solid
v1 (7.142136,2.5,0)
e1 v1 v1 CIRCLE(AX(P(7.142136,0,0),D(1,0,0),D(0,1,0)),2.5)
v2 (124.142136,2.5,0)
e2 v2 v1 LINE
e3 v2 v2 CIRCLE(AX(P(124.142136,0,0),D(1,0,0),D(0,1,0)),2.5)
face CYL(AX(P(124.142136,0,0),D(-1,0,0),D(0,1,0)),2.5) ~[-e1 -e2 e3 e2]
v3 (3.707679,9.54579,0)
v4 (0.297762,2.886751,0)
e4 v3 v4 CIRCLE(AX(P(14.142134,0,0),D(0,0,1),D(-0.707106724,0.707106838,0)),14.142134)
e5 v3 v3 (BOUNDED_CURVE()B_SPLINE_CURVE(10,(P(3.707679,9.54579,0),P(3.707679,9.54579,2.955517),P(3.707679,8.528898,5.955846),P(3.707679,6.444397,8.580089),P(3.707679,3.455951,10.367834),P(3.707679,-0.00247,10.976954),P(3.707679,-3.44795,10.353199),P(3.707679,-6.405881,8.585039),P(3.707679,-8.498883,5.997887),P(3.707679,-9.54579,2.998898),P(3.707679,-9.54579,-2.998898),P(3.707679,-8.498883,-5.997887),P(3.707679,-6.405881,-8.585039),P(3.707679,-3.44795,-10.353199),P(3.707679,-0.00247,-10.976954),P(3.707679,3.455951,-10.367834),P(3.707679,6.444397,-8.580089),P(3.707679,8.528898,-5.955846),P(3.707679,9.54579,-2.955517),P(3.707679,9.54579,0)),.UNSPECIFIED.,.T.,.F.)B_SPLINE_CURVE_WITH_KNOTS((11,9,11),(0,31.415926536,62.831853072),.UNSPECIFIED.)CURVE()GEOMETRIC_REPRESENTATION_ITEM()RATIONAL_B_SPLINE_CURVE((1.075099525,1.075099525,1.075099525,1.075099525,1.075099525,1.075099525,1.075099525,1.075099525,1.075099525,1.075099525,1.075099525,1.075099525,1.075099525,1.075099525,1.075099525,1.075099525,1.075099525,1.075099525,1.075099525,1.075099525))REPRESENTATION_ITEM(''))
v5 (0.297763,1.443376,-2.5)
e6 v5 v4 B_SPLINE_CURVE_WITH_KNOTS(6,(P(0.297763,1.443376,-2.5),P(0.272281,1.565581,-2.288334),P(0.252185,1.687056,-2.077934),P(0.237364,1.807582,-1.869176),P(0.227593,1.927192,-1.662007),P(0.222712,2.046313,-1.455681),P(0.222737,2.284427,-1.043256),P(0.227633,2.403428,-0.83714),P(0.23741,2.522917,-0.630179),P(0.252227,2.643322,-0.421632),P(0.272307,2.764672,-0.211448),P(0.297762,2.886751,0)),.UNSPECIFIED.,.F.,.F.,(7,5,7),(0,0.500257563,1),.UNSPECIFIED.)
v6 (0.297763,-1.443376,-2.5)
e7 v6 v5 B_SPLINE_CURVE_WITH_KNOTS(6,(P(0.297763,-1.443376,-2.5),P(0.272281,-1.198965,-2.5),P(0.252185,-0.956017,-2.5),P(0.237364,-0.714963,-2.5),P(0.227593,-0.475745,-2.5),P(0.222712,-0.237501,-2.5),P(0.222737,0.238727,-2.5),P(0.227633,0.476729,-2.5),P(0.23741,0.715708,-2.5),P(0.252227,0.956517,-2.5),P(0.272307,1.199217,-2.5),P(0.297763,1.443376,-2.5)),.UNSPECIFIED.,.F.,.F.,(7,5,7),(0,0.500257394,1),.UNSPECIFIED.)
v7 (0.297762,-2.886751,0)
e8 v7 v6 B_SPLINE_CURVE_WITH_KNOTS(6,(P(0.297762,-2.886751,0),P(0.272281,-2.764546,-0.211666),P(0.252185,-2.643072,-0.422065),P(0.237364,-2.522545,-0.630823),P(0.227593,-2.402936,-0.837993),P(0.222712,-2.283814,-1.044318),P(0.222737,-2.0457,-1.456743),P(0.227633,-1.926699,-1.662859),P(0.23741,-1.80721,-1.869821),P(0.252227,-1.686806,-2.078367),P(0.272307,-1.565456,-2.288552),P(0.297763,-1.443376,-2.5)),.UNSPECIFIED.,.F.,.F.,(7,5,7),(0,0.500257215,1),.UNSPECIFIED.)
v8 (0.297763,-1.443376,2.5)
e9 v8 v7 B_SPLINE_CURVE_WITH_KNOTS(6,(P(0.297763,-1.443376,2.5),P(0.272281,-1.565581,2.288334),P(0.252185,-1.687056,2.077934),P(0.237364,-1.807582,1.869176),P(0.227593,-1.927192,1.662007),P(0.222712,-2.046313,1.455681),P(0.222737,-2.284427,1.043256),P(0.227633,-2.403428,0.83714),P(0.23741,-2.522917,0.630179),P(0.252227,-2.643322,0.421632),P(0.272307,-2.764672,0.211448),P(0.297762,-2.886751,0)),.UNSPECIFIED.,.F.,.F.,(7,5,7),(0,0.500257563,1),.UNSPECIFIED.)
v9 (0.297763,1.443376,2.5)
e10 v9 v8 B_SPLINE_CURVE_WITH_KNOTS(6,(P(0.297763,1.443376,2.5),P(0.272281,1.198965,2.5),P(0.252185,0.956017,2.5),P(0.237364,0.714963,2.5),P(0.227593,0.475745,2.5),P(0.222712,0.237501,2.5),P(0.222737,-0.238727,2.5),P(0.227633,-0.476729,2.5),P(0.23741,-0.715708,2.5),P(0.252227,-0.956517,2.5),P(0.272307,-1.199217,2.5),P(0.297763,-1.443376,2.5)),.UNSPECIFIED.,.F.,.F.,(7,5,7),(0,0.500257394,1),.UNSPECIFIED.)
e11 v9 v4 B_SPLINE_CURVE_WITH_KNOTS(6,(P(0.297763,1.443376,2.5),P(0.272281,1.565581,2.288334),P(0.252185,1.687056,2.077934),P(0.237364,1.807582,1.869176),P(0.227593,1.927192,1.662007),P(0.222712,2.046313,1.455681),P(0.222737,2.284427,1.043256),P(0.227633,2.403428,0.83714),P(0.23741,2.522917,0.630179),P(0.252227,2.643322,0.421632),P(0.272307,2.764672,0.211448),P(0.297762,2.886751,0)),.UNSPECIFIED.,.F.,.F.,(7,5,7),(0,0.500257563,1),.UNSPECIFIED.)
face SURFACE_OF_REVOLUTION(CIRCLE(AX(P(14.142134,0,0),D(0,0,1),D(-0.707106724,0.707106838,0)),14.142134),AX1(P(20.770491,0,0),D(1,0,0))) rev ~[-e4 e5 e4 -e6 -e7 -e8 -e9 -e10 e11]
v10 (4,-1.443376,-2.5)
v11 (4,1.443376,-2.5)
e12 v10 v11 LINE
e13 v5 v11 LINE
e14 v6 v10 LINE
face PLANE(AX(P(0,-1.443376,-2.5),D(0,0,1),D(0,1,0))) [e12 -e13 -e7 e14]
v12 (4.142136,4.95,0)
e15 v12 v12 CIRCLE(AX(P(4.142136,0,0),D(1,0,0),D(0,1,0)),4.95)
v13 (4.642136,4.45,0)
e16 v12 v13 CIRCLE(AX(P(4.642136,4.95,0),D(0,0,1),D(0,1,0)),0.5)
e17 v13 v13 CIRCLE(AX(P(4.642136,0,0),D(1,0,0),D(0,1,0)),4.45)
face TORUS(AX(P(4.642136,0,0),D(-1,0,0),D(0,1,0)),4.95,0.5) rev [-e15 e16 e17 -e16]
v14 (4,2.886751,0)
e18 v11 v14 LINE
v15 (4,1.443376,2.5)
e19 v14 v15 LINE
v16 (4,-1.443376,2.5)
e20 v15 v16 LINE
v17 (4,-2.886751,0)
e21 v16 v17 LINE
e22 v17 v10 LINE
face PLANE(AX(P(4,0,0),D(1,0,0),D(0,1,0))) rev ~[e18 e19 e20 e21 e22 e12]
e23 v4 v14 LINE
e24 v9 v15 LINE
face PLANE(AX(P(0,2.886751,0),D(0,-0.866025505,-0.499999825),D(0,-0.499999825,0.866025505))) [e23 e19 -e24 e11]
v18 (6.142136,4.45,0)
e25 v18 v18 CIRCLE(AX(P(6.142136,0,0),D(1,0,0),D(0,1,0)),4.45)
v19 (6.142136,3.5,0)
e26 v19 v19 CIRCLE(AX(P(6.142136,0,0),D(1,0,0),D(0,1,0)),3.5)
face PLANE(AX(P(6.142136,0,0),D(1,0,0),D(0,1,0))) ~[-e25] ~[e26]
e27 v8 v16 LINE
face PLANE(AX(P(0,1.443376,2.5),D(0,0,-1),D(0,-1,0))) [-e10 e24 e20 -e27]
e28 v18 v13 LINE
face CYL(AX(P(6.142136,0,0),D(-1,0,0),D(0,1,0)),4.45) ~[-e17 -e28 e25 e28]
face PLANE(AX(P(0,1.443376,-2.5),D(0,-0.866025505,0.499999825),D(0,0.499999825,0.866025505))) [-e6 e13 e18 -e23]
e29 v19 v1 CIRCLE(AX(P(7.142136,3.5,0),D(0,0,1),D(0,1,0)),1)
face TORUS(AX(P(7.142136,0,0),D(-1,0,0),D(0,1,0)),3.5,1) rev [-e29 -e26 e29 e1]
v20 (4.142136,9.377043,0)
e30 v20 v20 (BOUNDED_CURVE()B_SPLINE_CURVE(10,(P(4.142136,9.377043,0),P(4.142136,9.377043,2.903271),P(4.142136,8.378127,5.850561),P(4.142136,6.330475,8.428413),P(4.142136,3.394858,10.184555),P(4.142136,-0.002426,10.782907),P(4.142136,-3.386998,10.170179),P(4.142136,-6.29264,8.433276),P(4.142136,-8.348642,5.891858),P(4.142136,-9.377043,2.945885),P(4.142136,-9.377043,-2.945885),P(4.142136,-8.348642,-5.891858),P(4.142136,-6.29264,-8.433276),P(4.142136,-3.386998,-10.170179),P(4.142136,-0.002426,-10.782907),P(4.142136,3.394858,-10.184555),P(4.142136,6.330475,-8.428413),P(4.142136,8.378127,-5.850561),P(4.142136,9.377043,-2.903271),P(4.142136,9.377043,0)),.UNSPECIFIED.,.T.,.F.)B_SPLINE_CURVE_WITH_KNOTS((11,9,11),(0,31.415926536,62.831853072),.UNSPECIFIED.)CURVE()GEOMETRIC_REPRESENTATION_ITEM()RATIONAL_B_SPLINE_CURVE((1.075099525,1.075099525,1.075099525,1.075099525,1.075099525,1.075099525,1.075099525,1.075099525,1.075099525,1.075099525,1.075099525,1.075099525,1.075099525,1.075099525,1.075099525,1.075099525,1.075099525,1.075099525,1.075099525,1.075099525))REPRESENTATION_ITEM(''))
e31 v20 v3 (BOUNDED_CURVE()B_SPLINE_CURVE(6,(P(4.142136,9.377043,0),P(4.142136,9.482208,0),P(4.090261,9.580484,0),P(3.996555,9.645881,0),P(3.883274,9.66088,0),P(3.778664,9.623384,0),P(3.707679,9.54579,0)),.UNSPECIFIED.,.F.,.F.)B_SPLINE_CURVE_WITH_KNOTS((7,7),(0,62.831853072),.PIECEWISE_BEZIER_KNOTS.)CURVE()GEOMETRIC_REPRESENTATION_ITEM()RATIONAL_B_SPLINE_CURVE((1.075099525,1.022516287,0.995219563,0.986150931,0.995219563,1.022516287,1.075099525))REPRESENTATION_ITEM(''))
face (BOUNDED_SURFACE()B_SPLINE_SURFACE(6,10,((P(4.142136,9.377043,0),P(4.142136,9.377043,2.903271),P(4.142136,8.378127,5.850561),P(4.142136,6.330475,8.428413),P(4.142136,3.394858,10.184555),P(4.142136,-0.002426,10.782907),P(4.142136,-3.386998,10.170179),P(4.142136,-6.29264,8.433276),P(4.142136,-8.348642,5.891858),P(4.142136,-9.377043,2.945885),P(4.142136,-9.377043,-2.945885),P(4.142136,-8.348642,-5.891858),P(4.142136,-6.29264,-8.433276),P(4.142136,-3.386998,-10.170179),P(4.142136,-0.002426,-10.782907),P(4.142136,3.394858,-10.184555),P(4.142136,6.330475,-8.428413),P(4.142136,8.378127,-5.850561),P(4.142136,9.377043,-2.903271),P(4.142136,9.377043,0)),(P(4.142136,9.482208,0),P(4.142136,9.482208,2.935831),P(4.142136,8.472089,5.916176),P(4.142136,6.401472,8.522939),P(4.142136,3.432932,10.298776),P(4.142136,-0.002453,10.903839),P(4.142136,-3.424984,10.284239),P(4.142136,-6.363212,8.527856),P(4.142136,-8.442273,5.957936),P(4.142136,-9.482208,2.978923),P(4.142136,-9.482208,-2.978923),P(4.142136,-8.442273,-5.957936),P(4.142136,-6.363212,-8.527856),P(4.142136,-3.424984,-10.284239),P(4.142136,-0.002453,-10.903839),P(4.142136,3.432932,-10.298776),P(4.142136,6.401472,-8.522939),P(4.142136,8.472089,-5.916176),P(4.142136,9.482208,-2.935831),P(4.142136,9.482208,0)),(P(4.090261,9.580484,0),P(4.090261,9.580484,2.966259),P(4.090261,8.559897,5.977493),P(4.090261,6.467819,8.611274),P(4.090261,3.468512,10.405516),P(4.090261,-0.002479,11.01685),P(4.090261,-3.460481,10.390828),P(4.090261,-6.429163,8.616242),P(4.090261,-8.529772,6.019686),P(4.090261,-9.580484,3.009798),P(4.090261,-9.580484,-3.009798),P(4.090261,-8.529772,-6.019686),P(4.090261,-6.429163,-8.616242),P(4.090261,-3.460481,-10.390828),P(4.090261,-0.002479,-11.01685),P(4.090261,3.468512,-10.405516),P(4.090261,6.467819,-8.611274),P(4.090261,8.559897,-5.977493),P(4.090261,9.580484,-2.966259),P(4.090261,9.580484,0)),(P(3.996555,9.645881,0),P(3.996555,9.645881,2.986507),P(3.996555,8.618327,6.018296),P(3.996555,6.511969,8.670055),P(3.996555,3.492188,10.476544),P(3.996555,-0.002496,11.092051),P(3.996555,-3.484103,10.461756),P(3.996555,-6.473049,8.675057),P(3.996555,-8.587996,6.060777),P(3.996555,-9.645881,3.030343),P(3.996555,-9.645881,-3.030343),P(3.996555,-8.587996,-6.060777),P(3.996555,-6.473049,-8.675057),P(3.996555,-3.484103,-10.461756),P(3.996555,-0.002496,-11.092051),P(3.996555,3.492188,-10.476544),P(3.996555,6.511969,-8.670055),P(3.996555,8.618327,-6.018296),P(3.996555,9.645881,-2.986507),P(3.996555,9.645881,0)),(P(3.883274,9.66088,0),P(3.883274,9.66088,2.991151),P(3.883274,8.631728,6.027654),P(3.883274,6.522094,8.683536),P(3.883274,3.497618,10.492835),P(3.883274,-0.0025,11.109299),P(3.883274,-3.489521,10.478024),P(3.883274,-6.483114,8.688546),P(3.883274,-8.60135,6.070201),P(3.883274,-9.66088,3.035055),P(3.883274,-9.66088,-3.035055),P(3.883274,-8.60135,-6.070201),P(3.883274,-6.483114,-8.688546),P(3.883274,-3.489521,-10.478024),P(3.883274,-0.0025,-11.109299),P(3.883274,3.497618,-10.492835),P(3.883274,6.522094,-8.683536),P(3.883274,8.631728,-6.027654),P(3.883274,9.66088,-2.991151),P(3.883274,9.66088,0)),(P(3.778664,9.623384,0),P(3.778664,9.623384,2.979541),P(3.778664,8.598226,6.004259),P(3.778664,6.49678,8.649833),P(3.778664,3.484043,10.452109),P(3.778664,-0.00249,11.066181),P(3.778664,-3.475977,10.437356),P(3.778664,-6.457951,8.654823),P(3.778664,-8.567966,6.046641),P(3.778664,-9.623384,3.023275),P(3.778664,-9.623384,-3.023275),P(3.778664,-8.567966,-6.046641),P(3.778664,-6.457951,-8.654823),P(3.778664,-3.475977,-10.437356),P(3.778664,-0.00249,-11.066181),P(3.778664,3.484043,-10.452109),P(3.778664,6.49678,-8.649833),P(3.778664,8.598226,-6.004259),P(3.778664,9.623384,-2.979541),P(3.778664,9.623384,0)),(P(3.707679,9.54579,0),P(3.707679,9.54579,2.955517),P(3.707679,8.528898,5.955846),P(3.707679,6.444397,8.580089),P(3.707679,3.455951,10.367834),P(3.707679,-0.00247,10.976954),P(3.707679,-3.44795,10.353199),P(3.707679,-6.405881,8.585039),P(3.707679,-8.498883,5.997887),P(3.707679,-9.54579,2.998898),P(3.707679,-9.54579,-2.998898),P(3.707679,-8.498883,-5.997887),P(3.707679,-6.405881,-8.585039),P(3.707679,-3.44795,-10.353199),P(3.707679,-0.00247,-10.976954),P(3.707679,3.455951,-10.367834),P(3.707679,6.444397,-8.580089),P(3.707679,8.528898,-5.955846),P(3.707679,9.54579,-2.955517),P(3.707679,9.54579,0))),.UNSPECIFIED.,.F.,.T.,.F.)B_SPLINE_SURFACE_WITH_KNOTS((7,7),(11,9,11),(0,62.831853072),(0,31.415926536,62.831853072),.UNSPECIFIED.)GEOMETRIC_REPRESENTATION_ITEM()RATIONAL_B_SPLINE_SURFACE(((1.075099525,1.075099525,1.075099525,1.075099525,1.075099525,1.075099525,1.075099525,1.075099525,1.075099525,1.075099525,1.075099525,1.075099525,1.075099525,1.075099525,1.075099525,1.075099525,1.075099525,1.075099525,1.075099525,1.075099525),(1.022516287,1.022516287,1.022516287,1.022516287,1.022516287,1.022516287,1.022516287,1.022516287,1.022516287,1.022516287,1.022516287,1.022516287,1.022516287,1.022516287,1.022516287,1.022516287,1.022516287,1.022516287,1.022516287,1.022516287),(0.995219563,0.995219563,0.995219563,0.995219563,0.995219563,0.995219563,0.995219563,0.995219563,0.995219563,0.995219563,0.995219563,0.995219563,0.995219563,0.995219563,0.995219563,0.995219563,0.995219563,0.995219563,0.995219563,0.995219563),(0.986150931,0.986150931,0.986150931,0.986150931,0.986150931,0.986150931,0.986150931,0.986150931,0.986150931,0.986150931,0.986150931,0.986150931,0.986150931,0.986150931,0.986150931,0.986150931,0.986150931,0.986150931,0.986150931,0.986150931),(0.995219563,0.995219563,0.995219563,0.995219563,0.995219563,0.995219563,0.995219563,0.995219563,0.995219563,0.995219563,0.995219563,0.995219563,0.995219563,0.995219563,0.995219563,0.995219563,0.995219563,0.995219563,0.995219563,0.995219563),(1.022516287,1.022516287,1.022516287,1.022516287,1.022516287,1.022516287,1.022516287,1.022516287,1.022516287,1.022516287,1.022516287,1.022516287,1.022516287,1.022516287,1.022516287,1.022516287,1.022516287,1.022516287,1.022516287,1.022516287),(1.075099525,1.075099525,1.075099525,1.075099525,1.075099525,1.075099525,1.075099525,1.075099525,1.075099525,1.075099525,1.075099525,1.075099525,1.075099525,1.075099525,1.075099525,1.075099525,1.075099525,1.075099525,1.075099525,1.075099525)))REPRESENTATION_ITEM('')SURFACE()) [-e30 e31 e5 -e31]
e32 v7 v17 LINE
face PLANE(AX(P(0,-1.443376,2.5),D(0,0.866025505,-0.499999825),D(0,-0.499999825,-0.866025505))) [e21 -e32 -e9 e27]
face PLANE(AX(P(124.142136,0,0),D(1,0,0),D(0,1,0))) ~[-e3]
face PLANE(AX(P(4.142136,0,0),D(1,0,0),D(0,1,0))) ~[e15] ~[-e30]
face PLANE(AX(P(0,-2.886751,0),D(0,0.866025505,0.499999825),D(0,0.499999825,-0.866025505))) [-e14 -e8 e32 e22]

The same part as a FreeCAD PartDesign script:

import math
import FreeCAD as App
import Part
import Sketcher
Q = App.Units.Quantity


def edges_at(feature, points):
    """Names of the edges that pass closest to the given points."""
    edges = feature.Shape.Edges
    near = lambda p: min(range(len(edges)), key=lambda i: edges[i].distToShape(Part.Vertex(*p))[0])
    return sorted({f"Edge{near(p) + 1}" for p in points})


def add_polygon(sketch, points):
    """Adds a closed chain of lines whose ends are joined by coincident constraints."""
    first, n = sketch.GeometryCount, len(points)
    for a, b in zip(points, points[1:] + points[:1]):
        sketch.addGeometry(Part.LineSegment(App.Vector(*a, 0), App.Vector(*b, 0)), False)
    for i in range(n):
        sketch.addConstraint(Sketcher.Constraint("Coincident", first + i, 2, first + (i + 1) % n, 1))

doc = App.newDocument("Part")
params = doc.addObject("Spreadsheet::Sheet", "Params")
for row, (alias, value) in enumerate([
    ("sketch1_width", "118 mm"),
    ("sketch1_width2", "2 mm"),
    ("sketch1_height", "2.5 mm"),
    ("sketch1_height2", "1.95 mm"),
    ("revolution_angle", "360 deg"),
    ("fillet_radius", "0.25 mm"),
    ("fillet2_radius", "0.5 mm"),
    ("fillet3_radius", "1 mm"),
    ("pocket1_length", "4 mm"),
], start=1):
    params.set(f"A{row}", alias)
    params.set(f"B{row}", "=" + value)
    params.setAlias(f"B{row}", alias)

body = doc.addObject("PartDesign::Body", "Body")

# Sketch on XY plane
sketch1 = doc.addObject("Sketcher::SketchObject", "Sketch")
body.addObject(sketch1)
sketch1.AttachmentSupport = (doc.XY_Plane, [""])
sketch1.MapMode = "FlatFace"
sketch1.addGeometry(Part.LineSegment(App.Vector(0, 0, 0), App.Vector(124.1, 0, 0)), False)
sketch1.addGeometry(Part.LineSegment(App.Vector(124.1, 0, 0), App.Vector(124.1, 2.5, 0)), False)
sketch1.addGeometry(Part.LineSegment(App.Vector(124.1, 2.5, 0), App.Vector(6.1, 2.5, 0)), False)
sketch1.addGeometry(Part.LineSegment(App.Vector(6.1, 2.5, 0), App.Vector(6.1, 4.5, 0)), False)
sketch1.addGeometry(Part.LineSegment(App.Vector(6.1, 4.5, 0), App.Vector(4.1, 4.5, 0)), False)
sketch1.addGeometry(Part.LineSegment(App.Vector(4.1, 4.5, 0), App.Vector(4.1, 10, 0)), False)
sketch1.addGeometry(Part.ArcOfCircle(Part.Circle(App.Vector(14.1, 0, 0), App.Vector(0, 0, 1), 14.1), math.radians(135), math.radians(180)), False)
sketch1.addConstraint(Sketcher.Constraint("Coincident", 0, 2, 1, 1))
sketch1.addConstraint(Sketcher.Constraint("Coincident", 1, 2, 2, 1))
sketch1.addConstraint(Sketcher.Constraint("Coincident", 2, 2, 3, 1))
sketch1.addConstraint(Sketcher.Constraint("Coincident", 3, 2, 4, 1))
sketch1.addConstraint(Sketcher.Constraint("Coincident", 4, 2, 5, 1))
sketch1.addConstraint(Sketcher.Constraint("Coincident", 5, 2, 6, 1))
sketch1.addConstraint(Sketcher.Constraint("Coincident", 6, 2, 0, 1))
sketch1.addConstraint(Sketcher.Constraint("Horizontal", 0))
sketch1.addConstraint(Sketcher.Constraint("Vertical", 1))
sketch1.addConstraint(Sketcher.Constraint("Horizontal", 2))
sketch1.addConstraint(Sketcher.Constraint("Vertical", 3))
sketch1.addConstraint(Sketcher.Constraint("Horizontal", 4))
sketch1.addConstraint(Sketcher.Constraint("Vertical", 5))
sketch1.addConstraint(Sketcher.Constraint("Coincident", 6, 2, -1, 1))
sketch1.addConstraint(Sketcher.Constraint("PointOnObject", 6, 3, -1))
sketch1.addConstraint(Sketcher.Constraint("DistanceX", 2, 2, 2, 1, Q("118 mm")))
sketch1.addConstraint(Sketcher.Constraint("DistanceX", 4, 2, 4, 1, Q("2 mm")))
sketch1.addConstraint(Sketcher.Constraint("DistanceY", 1, 1, 1, 2, Q("2.5 mm")))
sketch1.addConstraint(Sketcher.Constraint("DistanceY", -1, 1, 5, 2, Q("10 mm")))
sketch1.addConstraint(Sketcher.Constraint("DistanceX", 6, 3, 0, 2, Q("110.000002 mm")))
sketch1.addConstraint(Sketcher.Constraint("DistanceY", 3, 1, 3, 2, Q("1.95 mm")))
sketch1.setExpression("Constraints[15]", "Params.sketch1_width")
sketch1.setExpression("Constraints[16]", "Params.sketch1_width2")
sketch1.setExpression("Constraints[17]", "Params.sketch1_height")
sketch1.setExpression("Constraints[20]", "Params.sketch1_height2")
revolution = doc.addObject("PartDesign::Revolution", "Revolution")
body.addObject(revolution)
revolution.Profile = sketch1
revolution.ReferenceAxis = (sketch1, ["H_Axis"])
revolution.setExpression("Angle", "Params.revolution_angle")
doc.recompute()

fillet = doc.addObject("PartDesign::Fillet", "Fillet")
body.addObject(fillet)
fillet.Base = (revolution, edges_at(revolution, [(4.142, -10, 0)]))
fillet.setExpression("Radius", "Params.fillet_radius")
doc.recompute()

fillet2 = doc.addObject("PartDesign::Fillet", "Fillet001")
body.addObject(fillet2)
fillet2.Base = (fillet, edges_at(fillet, [(4.142, -4.45, 0)]))
fillet2.setExpression("Radius", "Params.fillet2_radius")
doc.recompute()

fillet3 = doc.addObject("PartDesign::Fillet", "Fillet002")
body.addObject(fillet3)
fillet3.Base = (fillet2, edges_at(fillet2, [(6.142, -2.5, 0)]))
fillet3.setExpression("Radius", "Params.fillet3_radius")

# Sketch on YZ plane
sketch2 = doc.addObject("Sketcher::SketchObject", "Sketch001")
body.addObject(sketch2)
sketch2.AttachmentSupport = (doc.YZ_Plane, [""])
sketch2.MapMode = "FlatFace"
add_polygon(sketch2, [(-2.9, 0), (-1.4, -2.5), (1.4, -2.5), (2.9, 0), (1.4, 2.5), (-1.4, 2.5)])  # lines 0-5
sketch2.addConstraint(Sketcher.Constraint("Horizontal", 1))
sketch2.addConstraint(Sketcher.Constraint("Horizontal", 4))
sketch2.addConstraint(Sketcher.Constraint("Symmetric", 0, 2, 3, 2, -1, 1))
sketch2.addConstraint(Sketcher.Constraint("Symmetric", 2, 2, 5, 2, -1, 1))
sketch2.addConstraint(Sketcher.Constraint("PointOnObject", 2, 2, -1))
sketch2.addConstraint(Sketcher.Constraint("Parallel", 2, 5))
sketch2.addConstraint(Sketcher.Constraint("Vertical", 1, 2, 3, 2))
sketch2.addConstraint(Sketcher.Constraint("Angle", 0, Q("-60.000012 deg")))
sketch2.addConstraint(Sketcher.Constraint("DistanceY", 1, 2, 3, 2, Q("5 mm")))
sketch2.addConstraint(Sketcher.Constraint("DistanceX", 1, 1, 1, 2, Q("2.886752 mm")))
pocket1 = doc.addObject("PartDesign::Pocket", "Pocket")
body.addObject(pocket1)
pocket1.Profile = sketch2
pocket1.setExpression("Length", "Params.pocket1_length")
pocket1.Reversed = True

doc.recompute()
